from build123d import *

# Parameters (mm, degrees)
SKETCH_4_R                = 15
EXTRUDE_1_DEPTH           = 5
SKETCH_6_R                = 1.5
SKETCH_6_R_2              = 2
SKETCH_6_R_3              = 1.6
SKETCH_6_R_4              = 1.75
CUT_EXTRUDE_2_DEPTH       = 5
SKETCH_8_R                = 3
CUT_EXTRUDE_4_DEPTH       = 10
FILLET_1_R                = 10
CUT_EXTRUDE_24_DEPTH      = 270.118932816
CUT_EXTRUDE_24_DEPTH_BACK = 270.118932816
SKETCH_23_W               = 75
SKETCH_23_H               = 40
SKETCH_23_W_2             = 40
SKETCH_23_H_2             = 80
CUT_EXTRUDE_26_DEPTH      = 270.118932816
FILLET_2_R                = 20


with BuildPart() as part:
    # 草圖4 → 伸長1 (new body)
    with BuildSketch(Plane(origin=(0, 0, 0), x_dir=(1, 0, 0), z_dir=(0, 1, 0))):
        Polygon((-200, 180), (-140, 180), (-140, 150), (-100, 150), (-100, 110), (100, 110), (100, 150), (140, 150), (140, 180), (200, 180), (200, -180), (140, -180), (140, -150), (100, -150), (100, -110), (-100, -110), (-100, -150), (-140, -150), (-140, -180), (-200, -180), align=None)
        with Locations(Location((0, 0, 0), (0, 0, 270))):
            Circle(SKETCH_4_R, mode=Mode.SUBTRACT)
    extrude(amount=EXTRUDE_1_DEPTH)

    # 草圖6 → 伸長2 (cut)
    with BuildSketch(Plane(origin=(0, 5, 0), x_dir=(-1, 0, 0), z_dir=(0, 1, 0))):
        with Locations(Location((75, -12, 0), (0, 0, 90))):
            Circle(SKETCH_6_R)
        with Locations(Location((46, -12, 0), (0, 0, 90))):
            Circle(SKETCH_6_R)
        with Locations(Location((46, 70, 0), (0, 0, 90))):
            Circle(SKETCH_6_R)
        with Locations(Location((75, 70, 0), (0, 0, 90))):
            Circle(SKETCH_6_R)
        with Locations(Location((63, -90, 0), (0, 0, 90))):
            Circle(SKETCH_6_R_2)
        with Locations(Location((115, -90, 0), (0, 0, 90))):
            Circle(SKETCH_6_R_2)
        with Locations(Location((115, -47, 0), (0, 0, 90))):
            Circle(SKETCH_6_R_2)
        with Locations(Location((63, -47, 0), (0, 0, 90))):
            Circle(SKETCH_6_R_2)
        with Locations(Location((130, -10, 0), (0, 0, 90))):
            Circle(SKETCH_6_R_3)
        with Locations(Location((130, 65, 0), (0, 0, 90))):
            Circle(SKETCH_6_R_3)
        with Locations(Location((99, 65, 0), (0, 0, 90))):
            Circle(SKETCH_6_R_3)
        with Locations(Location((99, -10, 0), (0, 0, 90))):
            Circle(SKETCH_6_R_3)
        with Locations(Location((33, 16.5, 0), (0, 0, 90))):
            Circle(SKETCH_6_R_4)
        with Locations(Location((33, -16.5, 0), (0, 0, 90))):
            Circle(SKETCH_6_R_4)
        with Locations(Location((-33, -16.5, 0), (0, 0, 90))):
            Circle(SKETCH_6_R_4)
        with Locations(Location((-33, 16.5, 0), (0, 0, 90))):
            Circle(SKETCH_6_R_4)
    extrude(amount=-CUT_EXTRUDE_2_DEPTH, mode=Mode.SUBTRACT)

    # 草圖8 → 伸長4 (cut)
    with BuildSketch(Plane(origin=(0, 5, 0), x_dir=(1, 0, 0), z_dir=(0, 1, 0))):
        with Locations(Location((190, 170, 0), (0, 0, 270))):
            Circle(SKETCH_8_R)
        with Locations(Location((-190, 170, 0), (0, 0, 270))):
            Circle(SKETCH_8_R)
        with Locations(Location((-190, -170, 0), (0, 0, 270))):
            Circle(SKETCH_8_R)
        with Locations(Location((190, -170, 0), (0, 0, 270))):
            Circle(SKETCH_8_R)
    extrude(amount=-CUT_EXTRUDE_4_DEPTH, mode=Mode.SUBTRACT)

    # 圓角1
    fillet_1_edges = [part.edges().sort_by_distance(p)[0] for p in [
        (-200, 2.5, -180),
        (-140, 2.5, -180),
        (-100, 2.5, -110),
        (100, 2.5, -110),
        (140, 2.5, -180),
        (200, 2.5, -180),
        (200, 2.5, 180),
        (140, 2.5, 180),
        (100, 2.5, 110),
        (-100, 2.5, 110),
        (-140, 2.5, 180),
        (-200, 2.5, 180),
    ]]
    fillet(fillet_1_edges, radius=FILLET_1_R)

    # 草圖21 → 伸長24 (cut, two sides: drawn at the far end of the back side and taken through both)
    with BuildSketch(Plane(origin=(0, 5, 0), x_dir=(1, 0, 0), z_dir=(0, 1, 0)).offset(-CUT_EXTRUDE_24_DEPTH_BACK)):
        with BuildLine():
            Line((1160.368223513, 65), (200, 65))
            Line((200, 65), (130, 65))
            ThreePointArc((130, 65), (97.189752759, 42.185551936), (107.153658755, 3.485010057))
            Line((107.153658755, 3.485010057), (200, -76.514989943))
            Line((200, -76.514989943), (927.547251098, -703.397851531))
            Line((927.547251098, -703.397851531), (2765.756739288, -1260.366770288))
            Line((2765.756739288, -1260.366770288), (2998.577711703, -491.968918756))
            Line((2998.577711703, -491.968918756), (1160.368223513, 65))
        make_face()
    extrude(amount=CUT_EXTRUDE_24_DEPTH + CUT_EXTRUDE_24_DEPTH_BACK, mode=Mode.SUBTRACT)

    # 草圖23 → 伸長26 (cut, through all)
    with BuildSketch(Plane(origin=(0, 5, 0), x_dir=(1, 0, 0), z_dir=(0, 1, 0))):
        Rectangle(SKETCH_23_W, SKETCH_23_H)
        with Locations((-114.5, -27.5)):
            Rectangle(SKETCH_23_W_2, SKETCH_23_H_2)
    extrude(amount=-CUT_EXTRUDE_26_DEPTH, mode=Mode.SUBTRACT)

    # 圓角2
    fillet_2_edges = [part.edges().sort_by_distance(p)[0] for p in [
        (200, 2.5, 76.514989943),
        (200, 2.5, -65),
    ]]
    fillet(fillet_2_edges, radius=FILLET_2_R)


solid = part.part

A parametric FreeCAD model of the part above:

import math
import FreeCAD as App
import Part
import Sketcher


def edges_at(feature, points):
    """Names of the edges that pass closest to the given points."""
    edges = feature.Shape.Edges
    near = lambda p: min(range(len(edges)), key=lambda i: edges[i].distToShape(Part.Vertex(*p))[0])
    return sorted({f"Edge{near(p) + 1}" for p in points})

doc = App.newDocument("Part")
body = doc.addObject("PartDesign::Body", "Body")

sketch1 = doc.addObject("Sketcher::SketchObject", "Sketch")
body.addObject(sketch1)
sketch1.AttachmentSupport = (doc.XZ_Plane, [""])
sketch1.MapMode = "FlatFace"
sketch1.addGeometry(Part.LineSegment(App.Vector(-140, -180, 0), App.Vector(-200, -180, 0)), False)
sketch1.addGeometry(Part.LineSegment(App.Vector(-200, -180, 0), App.Vector(-200, 180, 0)), False)
sketch1.addGeometry(Part.LineSegment(App.Vector(-200, 180, 0), App.Vector(-140, 180, 0)), False)
sketch1.addGeometry(Part.LineSegment(App.Vector(-140, 180, 0), App.Vector(-140, 150, 0)), False)
sketch1.addGeometry(Part.LineSegment(App.Vector(-140, 150, 0), App.Vector(-100, 150, 0)), False)
sketch1.addGeometry(Part.LineSegment(App.Vector(-100, 150, 0), App.Vector(-100, 110, 0)), False)
sketch1.addGeometry(Part.LineSegment(App.Vector(-100, 110, 0), App.Vector(100, 110, 0)), False)
sketch1.addGeometry(Part.LineSegment(App.Vector(100, 110, 0), App.Vector(100, 150, 0)), False)
sketch1.addGeometry(Part.LineSegment(App.Vector(100, 150, 0), App.Vector(140, 150, 0)), False)
sketch1.addGeometry(Part.LineSegment(App.Vector(140, 150, 0), App.Vector(140, 180, 0)), False)
sketch1.addGeometry(Part.LineSegment(App.Vector(140, 180, 0), App.Vector(200, 180, 0)), False)
sketch1.addGeometry(Part.LineSegment(App.Vector(200, 180, 0), App.Vector(200, -180, 0)), False)
sketch1.addGeometry(Part.LineSegment(App.Vector(200, -180, 0), App.Vector(140, -180, 0)), False)
sketch1.addGeometry(Part.LineSegment(App.Vector(140, -180, 0), App.Vector(140, -150, 0)), False)
sketch1.addGeometry(Part.LineSegment(App.Vector(140, -150, 0), App.Vector(100, -150, 0)), False)
sketch1.addGeometry(Part.LineSegment(App.Vector(100, -150, 0), App.Vector(100, -110, 0)), False)
sketch1.addGeometry(Part.LineSegment(App.Vector(100, -110, 0), App.Vector(-100, -110, 0)), False)
sketch1.addGeometry(Part.LineSegment(App.Vector(-100, -110, 0), App.Vector(-100, -150, 0)), False)
sketch1.addGeometry(Part.LineSegment(App.Vector(-100, -150, 0), App.Vector(-140, -150, 0)), False)
sketch1.addGeometry(Part.LineSegment(App.Vector(-140, -150, 0), App.Vector(-140, -180, 0)), False)
sketch1.addGeometry(Part.Circle(App.Vector(0, 0, 0), App.Vector(0, 0, 1), 15), False)
sketch1.addConstraint(Sketcher.Constraint("Coincident", 0, 2, 1, 1))
sketch1.addConstraint(Sketcher.Constraint("Coincident", 1, 2, 2, 1))
sketch1.addConstraint(Sketcher.Constraint("Coincident", 2, 2, 3, 1))
sketch1.addConstraint(Sketcher.Constraint("Coincident", 3, 2, 4, 1))
sketch1.addConstraint(Sketcher.Constraint("Coincident", 4, 2, 5, 1))
sketch1.addConstraint(Sketcher.Constraint("Coincident", 5, 2, 6, 1))
sketch1.addConstraint(Sketcher.Constraint("Coincident", 6, 2, 7, 1))
sketch1.addConstraint(Sketcher.Constraint("Coincident", 7, 2, 8, 1))
sketch1.addConstraint(Sketcher.Constraint("Coincident", 8, 2, 9, 1))
sketch1.addConstraint(Sketcher.Constraint("Coincident", 9, 2, 10, 1))
sketch1.addConstraint(Sketcher.Constraint("Coincident", 10, 2, 11, 1))
sketch1.addConstraint(Sketcher.Constraint("Coincident", 11, 2, 12, 1))
sketch1.addConstraint(Sketcher.Constraint("Coincident", 12, 2, 13, 1))
sketch1.addConstraint(Sketcher.Constraint("Coincident", 13, 2, 14, 1))
sketch1.addConstraint(Sketcher.Constraint("Coincident", 14, 2, 15, 1))
sketch1.addConstraint(Sketcher.Constraint("Coincident", 15, 2, 16, 1))
sketch1.addConstraint(Sketcher.Constraint("Coincident", 16, 2, 17, 1))
sketch1.addConstraint(Sketcher.Constraint("Coincident", 17, 2, 18, 1))
sketch1.addConstraint(Sketcher.Constraint("Coincident", 18, 2, 19, 1))
sketch1.addConstraint(Sketcher.Constraint("Coincident", 19, 2, 0, 1))
sketch1.addConstraint(Sketcher.Constraint("Horizontal", 0))
sketch1.addConstraint(Sketcher.Constraint("Vertical", 1))
sketch1.addConstraint(Sketcher.Constraint("Horizontal", 2))
sketch1.addConstraint(Sketcher.Constraint("Vertical", 3))
sketch1.addConstraint(Sketcher.Constraint("Horizontal", 4))
sketch1.addConstraint(Sketcher.Constraint("Vertical", 5))
sketch1.addConstraint(Sketcher.Constraint("Horizontal", 6))
sketch1.addConstraint(Sketcher.Constraint("Vertical", 7))
sketch1.addConstraint(Sketcher.Constraint("Horizontal", 8))
sketch1.addConstraint(Sketcher.Constraint("Vertical", 9))
sketch1.addConstraint(Sketcher.Constraint("Horizontal", 10))
sketch1.addConstraint(Sketcher.Constraint("Vertical", 11))
sketch1.addConstraint(Sketcher.Constraint("Horizontal", 12))
sketch1.addConstraint(Sketcher.Constraint("Vertical", 13))
sketch1.addConstraint(Sketcher.Constraint("Horizontal", 14))
sketch1.addConstraint(Sketcher.Constraint("Vertical", 15))
sketch1.addConstraint(Sketcher.Constraint("Horizontal", 16))
sketch1.addConstraint(Sketcher.Constraint("Vertical", 17))
sketch1.addConstraint(Sketcher.Constraint("Horizontal", 18))
sketch1.addConstraint(Sketcher.Constraint("Vertical", 19))
sketch1.addConstraint(Sketcher.Constraint("Coincident", 20, 3, -1, 1))
sketch1.addConstraint(Sketcher.Constraint("Symmetric", 0, 2, 10, 2, -1, 1))
sketch1.addConstraint(Sketcher.Constraint("Symmetric", 2, 2, 12, 2, -1, 1))
sketch1.addConstraint(Sketcher.Constraint("Symmetric", 4, 2, 14, 2, -1, 1))
sketch1.addConstraint(Sketcher.Constraint("Symmetric", 6, 2, 16, 2, -1, 1))
sketch1.addConstraint(Sketcher.Constraint("Symmetric", 8, 2, 18, 2, -1, 1))
sketch1.addConstraint(Sketcher.Constraint("Symmetric", 4, 2, 7, 2, -2))
sketch1.addConstraint(Sketcher.Constraint("Symmetric", 2, 2, 9, 2, -2))
sketch1.addConstraint(Sketcher.Constraint("Equal", 18, 5))
sketch1.addConstraint(Sketcher.Constraint("Diameter", 20, 30.0))
sketch1.addConstraint(Sketcher.Constraint("DistanceX", 0, 2, 0, 1, 60.0))
sketch1.addConstraint(Sketcher.Constraint("DistanceX", 4, 1, 4, 2, 40.0))
sketch1.addConstraint(Sketcher.Constraint("DistanceX", 6, 1, 6, 2, 200.0))
sketch1.addConstraint(Sketcher.Constraint("DistanceY", 1, 1, 1, 2, 360.0))
sketch1.addConstraint(Sketcher.Constraint("DistanceY", 3, 2, 3, 1, 30.0))
pad1 = doc.addObject("PartDesign::Pad", "Pad")
body.addObject(pad1)
pad1.Profile = sketch1
pad1.Length = 5
pad1.Reversed = True

sketch2 = doc.addObject("Sketcher::SketchObject", "Sketch001")
body.addObject(sketch2)
sketch2.AttachmentSupport = (doc.XZ_Plane, [""])
sketch2.MapMode = "FlatFace"
sketch2.AttachmentOffset = App.Placement(App.Vector(0, 0, -5), App.Rotation())
sketch2.addGeometry(Part.Circle(App.Vector(-75, -12, 0), App.Vector(0, 0, 1), 1.5), False)
sketch2.addGeometry(Part.Circle(App.Vector(-46, -12, 0), App.Vector(0, 0, 1), 1.5), False)
sketch2.addGeometry(Part.Circle(App.Vector(-46, 70, 0), App.Vector(0, 0, 1), 1.5), False)
sketch2.addGeometry(Part.Circle(App.Vector(-75, 70, 0), App.Vector(0, 0, 1), 1.5), False)
sketch2.addGeometry(Part.Circle(App.Vector(-63, -90, 0), App.Vector(0, 0, 1), 2), False)
sketch2.addGeometry(Part.Circle(App.Vector(-115, -90, 0), App.Vector(0, 0, 1), 2), False)
sketch2.addGeometry(Part.Circle(App.Vector(-115, -47, 0), App.Vector(0, 0, 1), 2), False)
sketch2.addGeometry(Part.Circle(App.Vector(-63, -47, 0), App.Vector(0, 0, 1), 2), False)
sketch2.addGeometry(Part.Circle(App.Vector(-130, -10, 0), App.Vector(0, 0, 1), 1.6), False)
sketch2.addGeometry(Part.Circle(App.Vector(-130, 65, 0), App.Vector(0, 0, 1), 1.6), False)
sketch2.addGeometry(Part.Circle(App.Vector(-99, 65, 0), App.Vector(0, 0, 1), 1.6), False)
sketch2.addGeometry(Part.Circle(App.Vector(-99, -10, 0), App.Vector(0, 0, 1), 1.6), False)
sketch2.addGeometry(Part.Circle(App.Vector(-33, 16.5, 0), App.Vector(0, 0, 1), 1.8), False)
sketch2.addGeometry(Part.Circle(App.Vector(-33, -16.5, 0), App.Vector(0, 0, 1), 1.8), False)
sketch2.addGeometry(Part.Circle(App.Vector(33, -16.5, 0), App.Vector(0, 0, 1), 1.8), False)
sketch2.addGeometry(Part.Circle(App.Vector(33, 16.5, 0), App.Vector(0, 0, 1), 1.8), False)
sketch2.addConstraint(Sketcher.Constraint("Equal", 0, 1))
sketch2.addConstraint(Sketcher.Constraint("Equal", 1, 2))
sketch2.addConstraint(Sketcher.Constraint("Equal", 2, 3))
sketch2.addConstraint(Sketcher.Constraint("Equal", 4, 5))
sketch2.addConstraint(Sketcher.Constraint("Equal", 5, 6))
sketch2.addConstraint(Sketcher.Constraint("Equal", 6, 7))
sketch2.addConstraint(Sketcher.Constraint("Equal", 8, 9))
sketch2.addConstraint(Sketcher.Constraint("Equal", 9, 10))
sketch2.addConstraint(Sketcher.Constraint("Equal", 10, 11))
sketch2.addConstraint(Sketcher.Constraint("Equal", 12, 13))
sketch2.addConstraint(Sketcher.Constraint("Equal", 13, 14))
sketch2.addConstraint(Sketcher.Constraint("Equal", 14, 15))
sketch2.addConstraint(Sketcher.Constraint("Symmetric", 12, 3, 14, 3, -1, 1))
sketch2.addConstraint(Sketcher.Constraint("Symmetric", 13, 3, 15, 3, -1, 1))
sketch2.addConstraint(Sketcher.Constraint("Symmetric", 13, 3, 14, 3, -2))
sketch2.addConstraint(Sketcher.Constraint("Horizontal", 0, 3, 1, 3))
sketch2.addConstraint(Sketcher.Constraint("Horizontal", 2, 3, 3, 3))
sketch2.addConstraint(Sketcher.Constraint("Horizontal", 4, 3, 5, 3))
sketch2.addConstraint(Sketcher.Constraint("Horizontal", 6, 3, 7, 3))
sketch2.addConstraint(Sketcher.Constraint("Horizontal", 9, 3, 10, 3))
sketch2.addConstraint(Sketcher.Constraint("Horizontal", 8, 3, 11, 3))
sketch2.addConstraint(Sketcher.Constraint("Vertical", 1, 3, 2, 3))
sketch2.addConstraint(Sketcher.Constraint("Vertical", 0, 3, 3, 3))
sketch2.addConstraint(Sketcher.Constraint("Vertical", 5, 3, 6, 3))
sketch2.addConstraint(Sketcher.Constraint("Vertical", 4, 3, 7, 3))
sketch2.addConstraint(Sketcher.Constraint("Vertical", 8, 3, 9, 3))
sketch2.addConstraint(Sketcher.Constraint("Vertical", 10, 3, 11, 3))
sketch2.addConstraint(Sketcher.Constraint("Diameter", 0, 3.0))
sketch2.addConstraint(Sketcher.Constraint("Diameter", 4, 4.0))
sketch2.addConstraint(Sketcher.Constraint("Diameter", 8, 3.2))
sketch2.addConstraint(Sketcher.Constraint("Diameter", 12, 3.5))
sketch2.addConstraint(Sketcher.Constraint("DistanceX", 0, 3, -1, 1, 75.0))
sketch2.addConstraint(Sketcher.Constraint("DistanceY", 0, 3, -1, 1, 12.0))
sketch2.addConstraint(Sketcher.Constraint("DistanceX", 1, 3, -1, 1, 46.0))
sketch2.addConstraint(Sketcher.Constraint("DistanceY", -1, 1, 2, 3, 70.0))
sketch2.addConstraint(Sketcher.Constraint("DistanceX", 4, 3, -1, 1, 63.0))
sketch2.addConstraint(Sketcher.Constraint("DistanceY", 4, 3, -1, 1, 90.0))
sketch2.addConstraint(Sketcher.Constraint("DistanceX", 5, 3, -1, 1, 115.0))
sketch2.addConstraint(Sketcher.Constraint("DistanceY", 6, 3, -1, 1, 47.0))
sketch2.addConstraint(Sketcher.Constraint("DistanceX", 8, 3, -1, 1, 130.0))
sketch2.addConstraint(Sketcher.Constraint("DistanceY", 8, 3, -1, 1, 10.0))
sketch2.addConstraint(Sketcher.Constraint("DistanceY", -1, 1, 9, 3, 65.0))
sketch2.addConstraint(Sketcher.Constraint("DistanceX", 10, 3, -1, 1, 99.0))
sketch2.addConstraint(Sketcher.Constraint("DistanceX", 12, 3, -1, 1, 33.0))
sketch2.addConstraint(Sketcher.Constraint("DistanceY", 13, 3, 12, 3, 33.0))
pocket1 = doc.addObject("PartDesign::Pocket", "Pocket")
body.addObject(pocket1)
pocket1.Profile = sketch2
pocket1.Length = 5
pocket1.Reversed = True

sketch3 = doc.addObject("Sketcher::SketchObject", "Sketch002")
body.addObject(sketch3)
sketch3.AttachmentSupport = (doc.XZ_Plane, [""])
sketch3.MapMode = "FlatFace"
sketch3.AttachmentOffset = App.Placement(App.Vector(0, 0, -5), App.Rotation())
sketch3.addGeometry(Part.Circle(App.Vector(190, -170, 0), App.Vector(0, 0, 1), 3), False)
sketch3.addGeometry(Part.Circle(App.Vector(-190, -170, 0), App.Vector(0, 0, 1), 3), False)
sketch3.addGeometry(Part.Circle(App.Vector(-190, 170, 0), App.Vector(0, 0, 1), 3), False)
sketch3.addGeometry(Part.Circle(App.Vector(190, 170, 0), App.Vector(0, 0, 1), 3), False)
sketch3.addConstraint(Sketcher.Constraint("Equal", 0, 1))
sketch3.addConstraint(Sketcher.Constraint("Equal", 1, 2))
sketch3.addConstraint(Sketcher.Constraint("Equal", 2, 3))
sketch3.addConstraint(Sketcher.Constraint("Symmetric", 0, 3, 2, 3, -1, 1))
sketch3.addConstraint(Sketcher.Constraint("Symmetric", 1, 3, 3, 3, -1, 1))
sketch3.addConstraint(Sketcher.Constraint("Symmetric", 0, 3, 1, 3, -2))
sketch3.addConstraint(Sketcher.Constraint("Diameter", 0, 6.0))
sketch3.addConstraint(Sketcher.Constraint("DistanceX", -1, 1, 0, 3, 190.0))
sketch3.addConstraint(Sketcher.Constraint("DistanceY", 0, 3, -1, 1, 170.0))
pocket2 = doc.addObject("PartDesign::Pocket", "Pocket001")
body.addObject(pocket2)
pocket2.Profile = sketch3
pocket2.Length = 10
pocket2.Reversed = True
doc.recompute()

fillet = doc.addObject("PartDesign::Fillet", "Fillet")
body.addObject(fillet)
fillet.Base = (pocket2, edges_at(pocket2, [
    (-200, 2.5, -180),
    (-140, 2.5, -180),
    (-100, 2.5, -110),
    (100, 2.5, -110),
    (140, 2.5, -180),
    (200, 2.5, -180),
    (200, 2.5, 180),
    (140, 2.5, 180),
    (100, 2.5, 110),
    (-100, 2.5, 110),
    (-140, 2.5, 180),
    (-200, 2.5, 180),
]))
fillet.Radius = 10

sketch4 = doc.addObject("Sketcher::SketchObject", "Sketch003")
body.addObject(sketch4)
sketch4.AttachmentSupport = (doc.XZ_Plane, [""])
sketch4.MapMode = "FlatFace"
sketch4.AttachmentOffset = App.Placement(App.Vector(0, 0, -5), App.Rotation())
sketch4.addGeometry(Part.LineSegment(App.Vector(1160, -65, 0), App.Vector(130, -65, 0)), False)
sketch4.addGeometry(Part.ArcOfCircle(Part.Circle(App.Vector(130, -30, 0), App.Vector(0, 0, 1), 35), math.radians(131), math.radians(270)), False)
sketch4.addGeometry(Part.LineSegment(App.Vector(107, -3, 0), App.Vector(200, 77, 0)), False)
sketch4.addGeometry(Part.LineSegment(App.Vector(200, 77, 0), App.Vector(928, 703, 0)), False)
sketch4.addGeometry(Part.LineSegment(App.Vector(928, 703, 0), App.Vector(2766, 1260, 0)), False)
sketch4.addGeometry(Part.LineSegment(App.Vector(2766, 1260, 0), App.Vector(2999, 492, 0)), False)
sketch4.addGeometry(Part.LineSegment(App.Vector(2999, 492, 0), App.Vector(1160, -65, 0)), False)
sketch4.addConstraint(Sketcher.Constraint("Tangent", 0, 2, 1, 2))
sketch4.addConstraint(Sketcher.Constraint("Tangent", 1, 1, 2, 1))
sketch4.addConstraint(Sketcher.Constraint("Coincident", 2, 2, 3, 1))
sketch4.addConstraint(Sketcher.Constraint("Coincident", 3, 2, 4, 1))
sketch4.addConstraint(Sketcher.Constraint("Coincident", 4, 2, 5, 1))
sketch4.addConstraint(Sketcher.Constraint("Coincident", 5, 2, 6, 1))
sketch4.addConstraint(Sketcher.Constraint("Coincident", 6, 2, 0, 1))
sketch4.addConstraint(Sketcher.Constraint("Horizontal", 0))
sketch4.addConstraint(Sketcher.Constraint("Parallel", 2, 3))
sketch4.addConstraint(Sketcher.Constraint("Perpendicular", 4, 5))
sketch4.addConstraint(Sketcher.Constraint("Perpendicular", 5, 6))
sketch4.addConstraint(Sketcher.Constraint("Equal", 4, 6))
sketch4.addConstraint(Sketcher.Constraint("Radius", 1, 35.0))
sketch4.addConstraint(Sketcher.Constraint("DistanceX", -1, 1, 1, 3, 130.0))
sketch4.addConstraint(Sketcher.Constraint("DistanceY", 1, 3, -1, 1, 30.0))
sketch4.addConstraint(Sketcher.Constraint("DistanceX", -1, 1, 2, 2, 200.0))
sketch4.addConstraint(Sketcher.Constraint("DistanceY", 1, 1, 2, 2, 80.0))
sketch4.addConstraint(Sketcher.Constraint("Distance", 5, 802.8953))
sketch4.addConstraint(Sketcher.Constraint("DistanceX", 0, 2, 0, 1, 1030.368224))
sketch4.addConstraint(Sketcher.Constraint("DistanceX", -1, 1, 4, 2, 2765.756739))
pocket3 = doc.addObject("PartDesign::Pocket", "Pocket002")
body.addObject(pocket3)
pocket3.Profile = sketch4
pocket3.Type = "ThroughAll"
pocket3.Midplane = True

sketch5 = doc.addObject("Sketcher::SketchObject", "Sketch004")
body.addObject(sketch5)
sketch5.AttachmentSupport = (doc.XZ_Plane, [""])
sketch5.MapMode = "FlatFace"
sketch5.AttachmentOffset = App.Placement(App.Vector(0, 0, -5), App.Rotation())
sketch5.addGeometry(Part.LineSegment(App.Vector(-38, -20, 0), App.Vector(-38, 20, 0)), False)
sketch5.addGeometry(Part.LineSegment(App.Vector(-38, 20, 0), App.Vector(38, 20, 0)), False)
sketch5.addGeometry(Part.LineSegment(App.Vector(38, 20, 0), App.Vector(38, -20, 0)), False)
sketch5.addGeometry(Part.LineSegment(App.Vector(38, -20, 0), App.Vector(-38, -20, 0)), False)
sketch5.addGeometry(Part.LineSegment(App.Vector(-134, -12, 0), App.Vector(-134, 68, 0)), False)
sketch5.addGeometry(Part.LineSegment(App.Vector(-134, 68, 0), App.Vector(-94, 68, 0)), False)
sketch5.addGeometry(Part.LineSegment(App.Vector(-94, 68, 0), App.Vector(-94, -12, 0)), False)
sketch5.addGeometry(Part.LineSegment(App.Vector(-94, -12, 0), App.Vector(-134, -12, 0)), False)
sketch5.addConstraint(Sketcher.Constraint("Coincident", 0, 2, 1, 1))
sketch5.addConstraint(Sketcher.Constraint("Coincident", 1, 2, 2, 1))
sketch5.addConstraint(Sketcher.Constraint("Coincident", 2, 2, 3, 1))
sketch5.addConstraint(Sketcher.Constraint("Coincident", 3, 2, 0, 1))
sketch5.addConstraint(Sketcher.Constraint("Coincident", 4, 2, 5, 1))
sketch5.addConstraint(Sketcher.Constraint("Coincident", 5, 2, 6, 1))
sketch5.addConstraint(Sketcher.Constraint("Coincident", 6, 2, 7, 1))
sketch5.addConstraint(Sketcher.Constraint("Coincident", 7, 2, 4, 1))
sketch5.addConstraint(Sketcher.Constraint("Vertical", 0))
sketch5.addConstraint(Sketcher.Constraint("Horizontal", 1))
sketch5.addConstraint(Sketcher.Constraint("Vertical", 2))
sketch5.addConstraint(Sketcher.Constraint("Horizontal", 3))
sketch5.addConstraint(Sketcher.Constraint("Vertical", 4))
sketch5.addConstraint(Sketcher.Constraint("Horizontal", 5))
sketch5.addConstraint(Sketcher.Constraint("Vertical", 6))
sketch5.addConstraint(Sketcher.Constraint("Horizontal", 7))
sketch5.addConstraint(Sketcher.Constraint("Symmetric", 0, 2, 2, 2, -1, 1))
sketch5.addConstraint(Sketcher.Constraint("Equal", 7, 0))
sketch5.addConstraint(Sketcher.Constraint("DistanceX", 1, 1, 1, 2, 75.0))
sketch5.addConstraint(Sketcher.Constraint("DistanceX", 5, 1, 5, 2, 40.0))
sketch5.addConstraint(Sketcher.Constraint("DistanceY", 4, 1, 4, 2, 80.0))
sketch5.addConstraint(Sketcher.Constraint("DistanceX", 4, 2, 0, 2, 97.0))
sketch5.addConstraint(Sketcher.Constraint("DistanceY", -1, 1, 4, 2, 67.5))
pocket4 = doc.addObject("PartDesign::Pocket", "Pocket003")
body.addObject(pocket4)
pocket4.Profile = sketch5
pocket4.Type = "ThroughAll"
pocket4.Reversed = True
doc.recompute()

fillet2 = doc.addObject("PartDesign::Fillet", "Fillet001")
body.addObject(fillet2)
fillet2.Base = (pocket4, edges_at(pocket4, [(200, 2.5, 76.515), (200, 2.5, -65)]))
fillet2.Radius = 20

doc.recompute()
